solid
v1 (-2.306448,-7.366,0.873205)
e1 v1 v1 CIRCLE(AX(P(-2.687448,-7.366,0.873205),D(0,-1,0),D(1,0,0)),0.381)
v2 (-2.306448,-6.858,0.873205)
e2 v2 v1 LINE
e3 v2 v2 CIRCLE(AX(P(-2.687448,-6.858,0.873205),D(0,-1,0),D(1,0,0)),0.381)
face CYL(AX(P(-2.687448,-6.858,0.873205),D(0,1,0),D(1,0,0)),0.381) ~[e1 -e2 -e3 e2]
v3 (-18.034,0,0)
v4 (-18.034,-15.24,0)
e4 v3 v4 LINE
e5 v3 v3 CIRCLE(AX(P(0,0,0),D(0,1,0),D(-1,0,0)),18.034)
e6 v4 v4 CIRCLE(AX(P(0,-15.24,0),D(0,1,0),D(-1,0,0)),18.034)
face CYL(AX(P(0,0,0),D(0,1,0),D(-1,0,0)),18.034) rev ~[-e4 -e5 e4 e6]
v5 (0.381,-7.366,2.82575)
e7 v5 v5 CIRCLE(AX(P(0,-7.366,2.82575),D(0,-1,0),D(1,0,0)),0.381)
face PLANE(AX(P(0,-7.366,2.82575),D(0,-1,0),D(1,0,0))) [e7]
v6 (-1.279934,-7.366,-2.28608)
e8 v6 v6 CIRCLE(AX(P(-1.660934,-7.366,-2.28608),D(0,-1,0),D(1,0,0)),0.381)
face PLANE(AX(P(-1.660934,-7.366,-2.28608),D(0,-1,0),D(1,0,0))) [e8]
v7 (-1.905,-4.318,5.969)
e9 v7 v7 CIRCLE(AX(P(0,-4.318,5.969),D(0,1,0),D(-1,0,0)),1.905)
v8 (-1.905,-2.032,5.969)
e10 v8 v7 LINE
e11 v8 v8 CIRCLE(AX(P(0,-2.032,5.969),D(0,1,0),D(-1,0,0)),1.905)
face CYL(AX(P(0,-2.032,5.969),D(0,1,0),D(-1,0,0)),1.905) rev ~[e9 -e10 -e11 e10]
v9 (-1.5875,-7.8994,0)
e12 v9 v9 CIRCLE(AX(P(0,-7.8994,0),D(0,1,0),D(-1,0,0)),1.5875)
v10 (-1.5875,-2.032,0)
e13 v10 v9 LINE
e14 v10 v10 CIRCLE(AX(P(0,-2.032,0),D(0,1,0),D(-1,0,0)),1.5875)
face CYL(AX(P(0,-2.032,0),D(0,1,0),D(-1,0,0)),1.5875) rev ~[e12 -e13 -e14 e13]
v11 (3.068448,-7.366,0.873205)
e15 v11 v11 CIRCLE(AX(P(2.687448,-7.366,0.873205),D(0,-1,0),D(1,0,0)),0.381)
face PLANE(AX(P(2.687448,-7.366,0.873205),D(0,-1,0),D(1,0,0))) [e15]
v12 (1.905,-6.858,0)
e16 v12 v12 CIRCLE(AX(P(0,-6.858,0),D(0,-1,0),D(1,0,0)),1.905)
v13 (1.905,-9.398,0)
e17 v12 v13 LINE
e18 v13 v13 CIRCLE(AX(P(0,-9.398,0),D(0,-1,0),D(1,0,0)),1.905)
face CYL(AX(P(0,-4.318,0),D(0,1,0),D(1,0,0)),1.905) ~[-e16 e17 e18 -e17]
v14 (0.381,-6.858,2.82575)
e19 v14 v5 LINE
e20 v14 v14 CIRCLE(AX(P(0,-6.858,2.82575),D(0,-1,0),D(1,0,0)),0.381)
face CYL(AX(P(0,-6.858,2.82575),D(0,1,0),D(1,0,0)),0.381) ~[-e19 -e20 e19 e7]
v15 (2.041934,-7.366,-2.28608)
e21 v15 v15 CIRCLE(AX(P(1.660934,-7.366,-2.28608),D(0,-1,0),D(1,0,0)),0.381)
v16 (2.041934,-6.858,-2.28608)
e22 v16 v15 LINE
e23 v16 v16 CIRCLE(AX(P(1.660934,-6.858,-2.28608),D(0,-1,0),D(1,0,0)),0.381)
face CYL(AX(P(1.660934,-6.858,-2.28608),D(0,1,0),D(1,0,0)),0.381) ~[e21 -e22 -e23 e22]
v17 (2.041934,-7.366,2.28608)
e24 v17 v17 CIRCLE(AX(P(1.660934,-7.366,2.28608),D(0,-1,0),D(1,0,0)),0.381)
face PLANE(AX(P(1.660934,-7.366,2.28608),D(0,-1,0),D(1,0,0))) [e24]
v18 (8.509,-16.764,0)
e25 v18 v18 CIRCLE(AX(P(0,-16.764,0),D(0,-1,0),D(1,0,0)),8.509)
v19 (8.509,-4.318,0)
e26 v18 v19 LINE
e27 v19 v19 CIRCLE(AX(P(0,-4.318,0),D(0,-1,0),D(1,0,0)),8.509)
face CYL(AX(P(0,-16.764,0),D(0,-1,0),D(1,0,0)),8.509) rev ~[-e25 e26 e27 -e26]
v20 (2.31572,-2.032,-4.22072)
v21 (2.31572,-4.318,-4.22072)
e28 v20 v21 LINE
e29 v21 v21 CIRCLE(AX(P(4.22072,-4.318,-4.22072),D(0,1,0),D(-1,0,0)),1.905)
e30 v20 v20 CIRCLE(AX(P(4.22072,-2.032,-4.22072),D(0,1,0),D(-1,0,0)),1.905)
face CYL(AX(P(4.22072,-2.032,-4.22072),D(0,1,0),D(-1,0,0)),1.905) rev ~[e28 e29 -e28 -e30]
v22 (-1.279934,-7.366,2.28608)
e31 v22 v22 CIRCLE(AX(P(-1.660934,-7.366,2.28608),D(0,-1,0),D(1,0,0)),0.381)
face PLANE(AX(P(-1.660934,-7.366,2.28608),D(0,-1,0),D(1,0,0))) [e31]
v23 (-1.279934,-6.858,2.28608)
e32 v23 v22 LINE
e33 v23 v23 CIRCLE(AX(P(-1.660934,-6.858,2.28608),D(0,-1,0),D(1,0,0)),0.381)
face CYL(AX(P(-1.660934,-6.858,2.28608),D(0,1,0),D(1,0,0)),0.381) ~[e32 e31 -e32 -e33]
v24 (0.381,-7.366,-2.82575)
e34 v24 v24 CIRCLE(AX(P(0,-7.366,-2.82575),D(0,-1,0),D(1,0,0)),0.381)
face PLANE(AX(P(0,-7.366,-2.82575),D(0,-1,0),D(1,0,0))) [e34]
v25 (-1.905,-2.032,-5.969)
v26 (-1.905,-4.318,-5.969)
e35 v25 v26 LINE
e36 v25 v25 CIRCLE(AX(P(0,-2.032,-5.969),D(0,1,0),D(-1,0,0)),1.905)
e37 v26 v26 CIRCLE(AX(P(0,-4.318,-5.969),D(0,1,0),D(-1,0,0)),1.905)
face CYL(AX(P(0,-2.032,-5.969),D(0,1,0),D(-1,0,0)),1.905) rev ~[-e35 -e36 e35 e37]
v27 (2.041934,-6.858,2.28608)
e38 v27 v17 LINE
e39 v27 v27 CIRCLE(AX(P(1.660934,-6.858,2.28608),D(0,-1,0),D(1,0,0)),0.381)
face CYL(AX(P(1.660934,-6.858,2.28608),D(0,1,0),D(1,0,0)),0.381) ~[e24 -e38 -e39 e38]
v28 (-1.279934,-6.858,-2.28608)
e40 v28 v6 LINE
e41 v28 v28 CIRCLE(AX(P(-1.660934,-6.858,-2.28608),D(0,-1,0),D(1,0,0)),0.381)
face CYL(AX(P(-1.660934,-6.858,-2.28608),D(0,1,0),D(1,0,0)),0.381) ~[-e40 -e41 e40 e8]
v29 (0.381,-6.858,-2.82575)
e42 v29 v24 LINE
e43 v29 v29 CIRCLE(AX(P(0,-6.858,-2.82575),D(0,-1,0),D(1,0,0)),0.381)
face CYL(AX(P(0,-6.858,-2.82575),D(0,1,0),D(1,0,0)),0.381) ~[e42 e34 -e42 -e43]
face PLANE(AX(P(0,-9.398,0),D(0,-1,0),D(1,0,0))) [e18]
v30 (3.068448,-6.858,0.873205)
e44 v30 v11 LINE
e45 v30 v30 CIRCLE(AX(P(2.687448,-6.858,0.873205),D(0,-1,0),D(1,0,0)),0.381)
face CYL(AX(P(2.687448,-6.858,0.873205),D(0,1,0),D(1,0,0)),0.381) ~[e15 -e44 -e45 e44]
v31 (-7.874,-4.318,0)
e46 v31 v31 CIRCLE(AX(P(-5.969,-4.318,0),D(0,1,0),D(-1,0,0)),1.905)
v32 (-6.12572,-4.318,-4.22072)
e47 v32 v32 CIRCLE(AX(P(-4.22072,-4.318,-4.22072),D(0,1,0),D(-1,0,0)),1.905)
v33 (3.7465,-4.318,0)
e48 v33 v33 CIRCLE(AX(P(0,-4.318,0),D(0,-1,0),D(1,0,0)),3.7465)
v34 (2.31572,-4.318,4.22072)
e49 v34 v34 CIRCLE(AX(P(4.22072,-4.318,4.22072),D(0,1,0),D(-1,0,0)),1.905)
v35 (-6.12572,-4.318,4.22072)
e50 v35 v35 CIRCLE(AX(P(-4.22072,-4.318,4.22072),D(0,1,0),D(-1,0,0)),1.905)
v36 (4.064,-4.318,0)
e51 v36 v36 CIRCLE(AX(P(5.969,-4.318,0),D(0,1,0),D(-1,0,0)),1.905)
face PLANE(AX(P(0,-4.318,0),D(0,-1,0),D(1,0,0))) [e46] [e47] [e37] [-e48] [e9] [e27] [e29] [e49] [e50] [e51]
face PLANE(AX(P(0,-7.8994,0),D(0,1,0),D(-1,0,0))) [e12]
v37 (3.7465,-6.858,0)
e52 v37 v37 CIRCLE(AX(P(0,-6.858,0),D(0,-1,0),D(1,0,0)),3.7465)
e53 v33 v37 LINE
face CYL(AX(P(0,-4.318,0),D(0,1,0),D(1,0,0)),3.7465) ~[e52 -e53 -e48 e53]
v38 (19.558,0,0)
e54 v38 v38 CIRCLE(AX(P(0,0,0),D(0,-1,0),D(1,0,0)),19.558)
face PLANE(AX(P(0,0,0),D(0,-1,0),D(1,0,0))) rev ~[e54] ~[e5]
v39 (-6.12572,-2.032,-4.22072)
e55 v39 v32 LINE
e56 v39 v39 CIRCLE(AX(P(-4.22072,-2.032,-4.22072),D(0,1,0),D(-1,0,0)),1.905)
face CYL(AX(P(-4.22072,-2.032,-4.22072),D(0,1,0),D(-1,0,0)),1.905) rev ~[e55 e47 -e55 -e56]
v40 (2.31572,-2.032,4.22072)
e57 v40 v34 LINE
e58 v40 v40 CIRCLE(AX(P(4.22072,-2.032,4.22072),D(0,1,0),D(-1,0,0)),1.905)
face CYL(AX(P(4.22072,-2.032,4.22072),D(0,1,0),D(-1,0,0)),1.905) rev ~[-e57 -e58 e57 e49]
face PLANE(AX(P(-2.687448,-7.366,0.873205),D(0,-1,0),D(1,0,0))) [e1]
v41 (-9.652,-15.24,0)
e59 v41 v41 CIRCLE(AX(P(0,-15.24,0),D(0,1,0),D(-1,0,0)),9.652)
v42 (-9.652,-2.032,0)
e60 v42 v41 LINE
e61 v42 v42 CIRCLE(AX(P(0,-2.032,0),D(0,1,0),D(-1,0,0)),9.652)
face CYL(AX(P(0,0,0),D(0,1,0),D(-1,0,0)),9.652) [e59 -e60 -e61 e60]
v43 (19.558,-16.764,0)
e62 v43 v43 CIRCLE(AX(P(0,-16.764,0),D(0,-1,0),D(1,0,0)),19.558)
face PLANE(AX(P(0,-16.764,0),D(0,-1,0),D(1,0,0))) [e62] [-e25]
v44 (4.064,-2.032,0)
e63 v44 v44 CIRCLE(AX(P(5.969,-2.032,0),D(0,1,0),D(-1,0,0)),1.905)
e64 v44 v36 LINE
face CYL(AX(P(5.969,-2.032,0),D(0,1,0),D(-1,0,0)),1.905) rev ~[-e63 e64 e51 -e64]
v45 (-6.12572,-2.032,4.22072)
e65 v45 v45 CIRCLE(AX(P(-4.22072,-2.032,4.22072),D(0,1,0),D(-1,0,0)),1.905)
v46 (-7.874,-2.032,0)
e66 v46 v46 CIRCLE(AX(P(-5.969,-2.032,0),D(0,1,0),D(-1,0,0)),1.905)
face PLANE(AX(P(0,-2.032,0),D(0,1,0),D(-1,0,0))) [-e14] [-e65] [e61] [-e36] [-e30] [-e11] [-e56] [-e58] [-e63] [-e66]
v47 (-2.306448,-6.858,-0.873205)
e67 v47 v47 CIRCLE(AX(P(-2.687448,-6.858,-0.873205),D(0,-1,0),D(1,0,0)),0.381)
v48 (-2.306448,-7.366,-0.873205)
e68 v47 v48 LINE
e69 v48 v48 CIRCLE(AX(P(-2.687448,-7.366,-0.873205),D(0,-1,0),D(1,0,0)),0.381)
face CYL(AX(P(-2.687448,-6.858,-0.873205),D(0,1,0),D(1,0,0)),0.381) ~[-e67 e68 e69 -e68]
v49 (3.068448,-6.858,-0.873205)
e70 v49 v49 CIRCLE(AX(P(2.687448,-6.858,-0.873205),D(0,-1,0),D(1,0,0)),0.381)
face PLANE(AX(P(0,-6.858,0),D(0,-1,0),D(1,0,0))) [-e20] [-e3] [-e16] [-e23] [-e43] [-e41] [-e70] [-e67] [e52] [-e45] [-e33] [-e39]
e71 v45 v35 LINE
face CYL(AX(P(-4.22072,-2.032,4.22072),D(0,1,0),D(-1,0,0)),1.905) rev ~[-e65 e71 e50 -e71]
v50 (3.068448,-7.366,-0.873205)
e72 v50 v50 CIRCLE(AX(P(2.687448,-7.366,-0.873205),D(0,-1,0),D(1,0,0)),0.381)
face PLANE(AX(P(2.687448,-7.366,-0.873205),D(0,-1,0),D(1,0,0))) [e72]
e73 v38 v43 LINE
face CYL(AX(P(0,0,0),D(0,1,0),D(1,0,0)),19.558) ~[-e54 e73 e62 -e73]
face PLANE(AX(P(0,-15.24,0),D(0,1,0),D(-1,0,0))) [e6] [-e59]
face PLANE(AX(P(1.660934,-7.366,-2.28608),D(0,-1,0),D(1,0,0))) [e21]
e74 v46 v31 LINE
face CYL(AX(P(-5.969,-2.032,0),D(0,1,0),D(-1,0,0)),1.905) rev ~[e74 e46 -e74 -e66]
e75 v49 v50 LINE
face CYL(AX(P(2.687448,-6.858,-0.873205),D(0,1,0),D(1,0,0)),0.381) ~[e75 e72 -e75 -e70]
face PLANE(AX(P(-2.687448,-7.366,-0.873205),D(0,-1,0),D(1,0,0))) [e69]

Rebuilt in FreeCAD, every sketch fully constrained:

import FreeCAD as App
import Part
import Sketcher
Q = App.Units.Quantity

doc = App.newDocument("Part")
body = doc.addObject("PartDesign::Body", "Body")

sketch1 = doc.addObject("Sketcher::SketchObject", "Sketch")
body.addObject(sketch1)
sketch1.AttachmentSupport = (doc.XZ_Plane, [""])
sketch1.MapMode = "FlatFace"
sketch1.addGeometry(Part.Circle(App.Vector(0, 0, 0), App.Vector(0, 0, 1), 20), False)
sketch1.addConstraint([
    Sketcher.Constraint("Coincident", 0, 3, -1, 1),
    Sketcher.Constraint("Diameter", 0, Q("1.54 in")),
])
pad1 = doc.addObject("PartDesign::Pad", "Pad")
body.addObject(pad1)
pad1.Profile = sketch1
pad1.Length = Q("0.66 in")

sketch2 = doc.addObject("Sketcher::SketchObject", "Sketch001")
body.addObject(sketch2)
sketch2.AttachmentSupport = (doc.XZ_Plane, [""])
sketch2.MapMode = "FlatFace"
sketch2.AttachmentOffset = App.Placement(App.Vector(0, 0, 0.66 * 25.4), App.Rotation())
sketch2.addGeometry(Part.Circle(App.Vector(0, 0, 0), App.Vector(0, 0, 1), 9), False)
sketch2.addConstraint([
    Sketcher.Constraint("Coincident", 0, 3, -1, 1),
    Sketcher.Constraint("Diameter", 0, Q("0.67 in")),
])
pocket1 = doc.addObject("PartDesign::Pocket", "Pocket")
body.addObject(pocket1)
pocket1.Profile = sketch2
pocket1.Length = Q("0.49 in")

sketch3 = doc.addObject("Sketcher::SketchObject", "Sketch002")
body.addObject(sketch3)
sketch3.AttachmentSupport = (doc.XZ_Plane, [""])
sketch3.MapMode = "FlatFace"
sketch3.addGeometry([
    Part.Circle(App.Vector(0, 0, 0), App.Vector(0, 0, 1), 18),
    Part.Circle(App.Vector(0, 0, 0), App.Vector(0, 0, 1), 10),
], False)
sketch3.addConstraint([
    Sketcher.Constraint("Coincident", 0, 3, -1, 1),
    Sketcher.Constraint("Coincident", 1, 3, -1, 1),
    Sketcher.Constraint("Diameter", 0, Q("1.42 in")),
    Sketcher.Constraint("Diameter", 1, Q("0.76 in")),
])
pocket2 = doc.addObject("PartDesign::Pocket", "Pocket001")
body.addObject(pocket2)
pocket2.Profile = sketch3
pocket2.Length = Q("0.6 in")
pocket2.Reversed = True

sketch4 = doc.addObject("Sketcher::SketchObject", "Sketch003")
body.addObject(sketch4)
sketch4.AttachmentSupport = (doc.XZ_Plane, [""])
sketch4.MapMode = "FlatFace"
sketch4.addGeometry(Part.Circle(App.Vector(0, 0, 0), App.Vector(0, 0, 1), 10), False)
sketch4.addConstraint([
    Sketcher.Constraint("Coincident", 0, 3, -1, 1),
    Sketcher.Constraint("Diameter", 0, Q("0.76 in")),
])
pocket3 = doc.addObject("PartDesign::Pocket", "Pocket002")
body.addObject(pocket3)
pocket3.Profile = sketch4
pocket3.Length = Q("0.08 in")
pocket3.Reversed = True

sketch5 = doc.addObject("Sketcher::SketchObject", "Sketch004")
body.addObject(sketch5)
sketch5.AttachmentSupport = (doc.XZ_Plane, [""])
sketch5.MapMode = "FlatFace"
sketch5.AttachmentOffset = App.Placement(App.Vector(0, 0, 0.08 * 25.4), App.Rotation())
sketch5.addGeometry([
    Part.Circle(App.Vector(-4.2, -4.2, 0), App.Vector(0, 0, 1), 1.9),
    Part.Circle(App.Vector(-6, 0, 0), App.Vector(0, 0, 1), 1.9),
    Part.Circle(App.Vector(-4.2, 4.2, 0), App.Vector(0, 0, 1), 1.9),
    Part.Circle(App.Vector(0, 6, 0), App.Vector(0, 0, 1), 1.9),
    Part.Circle(App.Vector(4.2, 4.2, 0), App.Vector(0, 0, 1), 1.9),
    Part.Circle(App.Vector(6, 0, 0), App.Vector(0, 0, 1), 1.9),
    Part.Circle(App.Vector(4.2, -4.2, 0), App.Vector(0, 0, 1), 1.9),
    Part.Circle(App.Vector(0, -6, 0), App.Vector(0, 0, 1), 1.9),
], False)
sketch5.addConstraint([
    Sketcher.Constraint("Equal", 0, 1),
    Sketcher.Constraint("Equal", 1, 2),
    Sketcher.Constraint("Equal", 2, 3),
    Sketcher.Constraint("Equal", 3, 4),
    Sketcher.Constraint("Equal", 4, 5),
    Sketcher.Constraint("Equal", 5, 6),
    Sketcher.Constraint("Equal", 6, 7),
    Sketcher.Constraint("Symmetric", 0, 3, 4, 3, -1, 1),
    Sketcher.Constraint("Symmetric", 1, 3, 5, 3, -1, 1),
    Sketcher.Constraint("Symmetric", 2, 3, 6, 3, -1, 1),
    Sketcher.Constraint("Symmetric", 3, 3, 7, 3, -1, 1),
    Sketcher.Constraint("Symmetric", 2, 3, 4, 3, -2),
    Sketcher.Constraint("PointOnObject", 1, 3, -1),
    Sketcher.Constraint("PointOnObject", 3, 3, -2),
    Sketcher.Constraint("Diameter", 0, Q("0.15 in")),
    Sketcher.Constraint("DistanceX", 1, 3, 5, 3, Q("0.47 in")),
    Sketcher.Constraint("DistanceY", -1, 1, 3, 3, Q("0.235 in")),
    Sketcher.Constraint("DistanceX", 0, 3, -1, 1, Q("4.22072 mm")),
    Sketcher.Constraint("DistanceY", 0, 3, -1, 1, Q("4.22072 mm")),
])
pocket4 = doc.addObject("PartDesign::Pocket", "Pocket003")
body.addObject(pocket4)
pocket4.Profile = sketch5
pocket4.Length = Q("1 in")
pocket4.Reversed = True

sketch6 = doc.addObject("Sketcher::SketchObject", "Sketch005")
body.addObject(sketch6)
sketch6.AttachmentSupport = (doc.XZ_Plane, [""])
sketch6.MapMode = "FlatFace"
sketch6.AttachmentOffset = App.Placement(App.Vector(0, 0, 0.17 * 25.4), App.Rotation())
sketch6.addGeometry(Part.Circle(App.Vector(0, 0, 0), App.Vector(0, 0, 1), 1.9), False)
sketch6.addConstraint([
    Sketcher.Constraint("Coincident", 0, 3, -1, 1),
    Sketcher.Constraint("Diameter", 0, Q("0.15 in")),
])
pad2 = doc.addObject("PartDesign::Pad", "Pad001")
body.addObject(pad2)
pad2.Profile = sketch6
pad2.Length = Q("0.2 in")

sketch7 = doc.addObject("Sketcher::SketchObject", "Sketch006")
body.addObject(sketch7)
sketch7.AttachmentSupport = (doc.XZ_Plane, [""])
sketch7.MapMode = "FlatFace"
sketch7.AttachmentOffset = App.Placement(App.Vector(0, 0, 0.17 * 25.4), App.Rotation())
sketch7.addGeometry([
    Part.Circle(App.Vector(0, 0, 0), App.Vector(0, 0, 1), 3.7),
    Part.Circle(App.Vector(0, 0, 0), App.Vector(0, 0, 1), 1.9),
], False)
sketch7.addConstraint([
    Sketcher.Constraint("Coincident", 0, 3, -1, 1),
    Sketcher.Constraint("Coincident", 1, 3, -1, 1),
    Sketcher.Constraint("Diameter", 1, Q("0.15 in")),
    Sketcher.Constraint("Diameter", 0, Q("0.295 in")),
])
pad3 = doc.addObject("PartDesign::Pad", "Pad002")
body.addObject(pad3)
pad3.Profile = sketch7
pad3.Length = Q("0.1 in")

sketch8 = doc.addObject("Sketcher::SketchObject", "Sketch007")
body.addObject(sketch8)
sketch8.AttachmentSupport = (doc.XZ_Plane, [""])
sketch8.MapMode = "FlatFace"
sketch8.AttachmentOffset = App.Placement(App.Vector(0, 0, 0.27 * 25.4), App.Rotation())
sketch8.addGeometry([
    Part.Circle(App.Vector(0, 2.83, 0), App.Vector(0, 0, 1), 0.38),
    Part.Circle(App.Vector(-1.66, 2.29, 0), App.Vector(0, 0, 1), 0.38),
    Part.Circle(App.Vector(-2.69, 0.87, 0), App.Vector(0, 0, 1), 0.38),
    Part.Circle(App.Vector(-2.69, -0.87, 0), App.Vector(0, 0, 1), 0.38),
    Part.Circle(App.Vector(-1.66, -2.29, 0), App.Vector(0, 0, 1), 0.38),
    Part.Circle(App.Vector(0, -2.83, 0), App.Vector(0, 0, 1), 0.38),
    Part.Circle(App.Vector(1.66, -2.29, 0), App.Vector(0, 0, 1), 0.38),
    Part.Circle(App.Vector(2.69, -0.87, 0), App.Vector(0, 0, 1), 0.38),
    Part.Circle(App.Vector(2.69, 0.87, 0), App.Vector(0, 0, 1), 0.38),
    Part.Circle(App.Vector(1.66, 2.29, 0), App.Vector(0, 0, 1), 0.38),
], False)
sketch8.addConstraint([
    Sketcher.Constraint("Equal", 0, 1),
    Sketcher.Constraint("Equal", 1, 2),
    Sketcher.Constraint("Equal", 2, 3),
    Sketcher.Constraint("Equal", 3, 4),
    Sketcher.Constraint("Equal", 4, 5),
    Sketcher.Constraint("Equal", 5, 6),
    Sketcher.Constraint("Equal", 6, 7),
    Sketcher.Constraint("Equal", 7, 8),
    Sketcher.Constraint("Equal", 8, 9),
    Sketcher.Constraint("Symmetric", 0, 3, 5, 3, -1, 1),
    Sketcher.Constraint("Symmetric", 1, 3, 6, 3, -1, 1),
    Sketcher.Constraint("Symmetric", 2, 3, 7, 3, -1, 1),
    Sketcher.Constraint("Symmetric", 3, 3, 8, 3, -1, 1),
    Sketcher.Constraint("Symmetric", 4, 3, 9, 3, -1, 1),
    Sketcher.Constraint("Symmetric", 4, 3, 6, 3, -2),
    Sketcher.Constraint("Symmetric", 3, 3, 7, 3, -2),
    Sketcher.Constraint("PointOnObject", 0, 3, -2),
    Sketcher.Constraint("Diameter", 0, Q("0.03 in")),
    Sketcher.Constraint("DistanceY", 5, 3, 0, 3, Q("0.2225 in")),
    Sketcher.Constraint("DistanceY", -1, 1, 1, 3, Q("2.28608 mm")),
    Sketcher.Constraint("DistanceY", 3, 3, 2, 3, Q("1.74641 mm")),
    Sketcher.Constraint("DistanceX", 1, 3, -1, 1, Q("1.660934 mm")),
    Sketcher.Constraint("DistanceX", 2, 3, -1, 1, Q("2.687448 mm")),
])
pad4 = doc.addObject("PartDesign::Pad", "Pad003")
body.addObject(pad4)
pad4.Profile = sketch8
pad4.Length = Q("0.02 in")

sketch9 = doc.addObject("Sketcher::SketchObject", "Sketch008")
body.addObject(sketch9)
sketch9.AttachmentSupport = (doc.XZ_Plane, [""])
sketch9.MapMode = "FlatFace"
sketch9.AttachmentOffset = App.Placement(App.Vector(0, 0, 0.08 * 25.4), App.Rotation())
sketch9.addGeometry(Part.Circle(App.Vector(0, 0, 0), App.Vector(0, 0, 1), 1.6), False)
sketch9.addConstraint([
    Sketcher.Constraint("Coincident", 0, 3, -1, 1),
    Sketcher.Constraint("Diameter", 0, Q("0.125 in")),
])
pocket5 = doc.addObject("PartDesign::Pocket", "Pocket004")
body.addObject(pocket5)
pocket5.Profile = sketch9
pocket5.Length = Q("0.231 in")
pocket5.Reversed = True

doc.recompute()
